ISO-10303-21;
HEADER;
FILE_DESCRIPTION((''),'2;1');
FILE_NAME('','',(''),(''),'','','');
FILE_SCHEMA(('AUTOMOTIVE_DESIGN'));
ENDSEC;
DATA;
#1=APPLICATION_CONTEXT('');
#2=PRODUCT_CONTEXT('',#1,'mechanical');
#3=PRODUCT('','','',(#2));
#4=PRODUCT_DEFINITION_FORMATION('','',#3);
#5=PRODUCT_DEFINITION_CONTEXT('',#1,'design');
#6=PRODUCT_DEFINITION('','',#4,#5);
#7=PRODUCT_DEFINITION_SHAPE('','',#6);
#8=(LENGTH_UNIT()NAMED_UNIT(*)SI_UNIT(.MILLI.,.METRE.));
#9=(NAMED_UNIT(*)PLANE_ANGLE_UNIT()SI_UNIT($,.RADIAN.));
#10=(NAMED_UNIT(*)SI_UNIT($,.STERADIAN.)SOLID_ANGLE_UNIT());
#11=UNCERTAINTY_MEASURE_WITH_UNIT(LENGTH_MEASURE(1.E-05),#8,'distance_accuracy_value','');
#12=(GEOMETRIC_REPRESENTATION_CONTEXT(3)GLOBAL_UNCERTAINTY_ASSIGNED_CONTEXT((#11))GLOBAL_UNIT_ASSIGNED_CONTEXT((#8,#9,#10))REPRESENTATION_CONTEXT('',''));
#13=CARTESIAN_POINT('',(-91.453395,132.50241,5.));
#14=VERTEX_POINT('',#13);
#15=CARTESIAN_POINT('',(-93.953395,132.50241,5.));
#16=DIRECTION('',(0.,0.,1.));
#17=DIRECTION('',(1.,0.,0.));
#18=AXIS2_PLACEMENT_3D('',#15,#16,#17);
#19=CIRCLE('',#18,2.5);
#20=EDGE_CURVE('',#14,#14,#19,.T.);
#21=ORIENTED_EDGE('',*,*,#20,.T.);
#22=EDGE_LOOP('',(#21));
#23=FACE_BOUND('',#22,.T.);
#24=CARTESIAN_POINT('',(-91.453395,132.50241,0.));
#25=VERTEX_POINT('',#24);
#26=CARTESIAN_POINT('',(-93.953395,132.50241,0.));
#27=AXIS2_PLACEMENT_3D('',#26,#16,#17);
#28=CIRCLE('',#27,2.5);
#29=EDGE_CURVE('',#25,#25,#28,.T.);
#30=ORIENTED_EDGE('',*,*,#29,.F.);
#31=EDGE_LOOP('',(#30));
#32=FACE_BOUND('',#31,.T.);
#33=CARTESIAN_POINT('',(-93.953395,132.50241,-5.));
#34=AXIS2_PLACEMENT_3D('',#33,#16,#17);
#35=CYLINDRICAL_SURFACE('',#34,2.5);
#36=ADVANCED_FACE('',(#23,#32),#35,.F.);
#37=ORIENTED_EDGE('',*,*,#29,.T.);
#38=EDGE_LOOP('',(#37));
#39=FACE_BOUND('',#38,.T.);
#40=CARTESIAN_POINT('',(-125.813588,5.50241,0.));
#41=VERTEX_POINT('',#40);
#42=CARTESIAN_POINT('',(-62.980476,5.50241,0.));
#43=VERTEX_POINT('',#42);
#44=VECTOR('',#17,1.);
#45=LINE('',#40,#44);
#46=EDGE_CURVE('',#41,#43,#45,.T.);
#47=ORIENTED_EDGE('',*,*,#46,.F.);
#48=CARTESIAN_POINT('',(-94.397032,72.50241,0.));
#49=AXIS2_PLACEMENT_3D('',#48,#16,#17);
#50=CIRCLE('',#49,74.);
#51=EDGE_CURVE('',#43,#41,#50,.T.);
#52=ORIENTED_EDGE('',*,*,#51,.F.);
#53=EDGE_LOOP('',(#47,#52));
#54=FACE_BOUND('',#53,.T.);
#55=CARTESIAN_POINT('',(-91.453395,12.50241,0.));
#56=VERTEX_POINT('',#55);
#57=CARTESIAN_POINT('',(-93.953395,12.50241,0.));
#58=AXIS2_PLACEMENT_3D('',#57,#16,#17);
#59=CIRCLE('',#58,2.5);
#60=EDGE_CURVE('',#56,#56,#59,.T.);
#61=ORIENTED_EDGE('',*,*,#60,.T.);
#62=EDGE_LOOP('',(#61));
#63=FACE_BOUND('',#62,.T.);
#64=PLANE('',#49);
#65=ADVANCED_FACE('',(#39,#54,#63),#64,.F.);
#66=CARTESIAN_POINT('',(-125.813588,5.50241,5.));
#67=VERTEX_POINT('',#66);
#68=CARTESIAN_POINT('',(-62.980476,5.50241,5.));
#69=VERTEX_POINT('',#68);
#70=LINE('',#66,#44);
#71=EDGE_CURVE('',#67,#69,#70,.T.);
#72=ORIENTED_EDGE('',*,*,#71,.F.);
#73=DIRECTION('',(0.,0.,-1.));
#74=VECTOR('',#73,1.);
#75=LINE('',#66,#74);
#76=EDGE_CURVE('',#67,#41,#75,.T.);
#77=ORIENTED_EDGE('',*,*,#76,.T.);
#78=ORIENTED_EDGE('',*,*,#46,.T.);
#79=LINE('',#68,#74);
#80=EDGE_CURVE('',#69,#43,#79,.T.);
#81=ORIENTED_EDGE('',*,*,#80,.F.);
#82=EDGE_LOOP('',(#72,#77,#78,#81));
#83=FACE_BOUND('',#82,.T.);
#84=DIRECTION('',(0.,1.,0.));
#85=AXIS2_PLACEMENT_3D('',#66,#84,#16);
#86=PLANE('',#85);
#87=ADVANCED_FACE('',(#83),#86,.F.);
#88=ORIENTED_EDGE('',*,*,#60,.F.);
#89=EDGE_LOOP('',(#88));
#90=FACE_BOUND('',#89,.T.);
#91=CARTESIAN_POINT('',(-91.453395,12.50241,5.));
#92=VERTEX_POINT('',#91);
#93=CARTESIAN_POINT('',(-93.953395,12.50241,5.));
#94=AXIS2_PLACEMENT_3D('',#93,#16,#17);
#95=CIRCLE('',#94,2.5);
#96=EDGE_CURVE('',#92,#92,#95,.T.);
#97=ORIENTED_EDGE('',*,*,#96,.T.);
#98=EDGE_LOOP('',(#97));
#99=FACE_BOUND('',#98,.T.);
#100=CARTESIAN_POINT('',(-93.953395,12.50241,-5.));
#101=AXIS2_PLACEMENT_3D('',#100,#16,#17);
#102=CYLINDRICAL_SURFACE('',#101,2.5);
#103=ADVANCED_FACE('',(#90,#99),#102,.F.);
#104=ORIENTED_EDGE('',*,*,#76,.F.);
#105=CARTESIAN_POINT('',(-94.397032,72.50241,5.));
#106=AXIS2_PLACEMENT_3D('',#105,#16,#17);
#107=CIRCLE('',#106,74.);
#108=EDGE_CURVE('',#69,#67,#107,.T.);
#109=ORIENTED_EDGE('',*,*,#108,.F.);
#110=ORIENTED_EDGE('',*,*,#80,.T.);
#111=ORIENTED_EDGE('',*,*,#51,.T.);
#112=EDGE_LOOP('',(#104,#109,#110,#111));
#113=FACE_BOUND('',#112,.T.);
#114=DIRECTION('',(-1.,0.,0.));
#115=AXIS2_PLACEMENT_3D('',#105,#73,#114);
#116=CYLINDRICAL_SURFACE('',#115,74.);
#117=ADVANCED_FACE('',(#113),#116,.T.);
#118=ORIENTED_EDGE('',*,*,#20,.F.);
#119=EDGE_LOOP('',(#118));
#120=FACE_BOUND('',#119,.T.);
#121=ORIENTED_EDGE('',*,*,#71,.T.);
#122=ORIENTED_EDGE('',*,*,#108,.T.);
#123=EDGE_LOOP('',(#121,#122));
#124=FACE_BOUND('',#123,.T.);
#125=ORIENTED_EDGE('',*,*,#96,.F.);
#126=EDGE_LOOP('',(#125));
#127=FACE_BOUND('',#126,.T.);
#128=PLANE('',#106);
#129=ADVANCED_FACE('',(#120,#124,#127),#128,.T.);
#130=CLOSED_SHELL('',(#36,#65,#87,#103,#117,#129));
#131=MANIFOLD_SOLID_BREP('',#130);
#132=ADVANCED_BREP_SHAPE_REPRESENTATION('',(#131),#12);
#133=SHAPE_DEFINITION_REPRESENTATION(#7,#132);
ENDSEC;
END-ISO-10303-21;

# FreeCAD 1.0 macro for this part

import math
import FreeCAD as App
import Part
import Sketcher

V = App.Vector

doc = App.newDocument("Part")
params = doc.addObject("Spreadsheet::Sheet", "Params")
for row, (alias, value) in enumerate([
    ("sketch1_radius", "74 mm"),
    ("pad1_length", "5 mm"),
    ("sketch2_diameter", "5 mm"),
    ("pocket1_length", "10 mm"),
], start=1):
    params.set(f"A{row}", alias)
    params.set(f"B{row}", "=" + value)
    params.setAlias(f"B{row}", alias)

body = doc.addObject("PartDesign::Body", "Body")

sketch1 = doc.addObject("Sketcher::SketchObject", "Sketch")
body.addObject(sketch1)
sketch1.AttachmentSupport = (doc.XY_Plane, [""])
sketch1.MapMode = "FlatFace"
sketch1.addGeometry(Part.LineSegment(V(-126, 6, 0), V(-63, 6, 0)), False)
sketch1.addGeometry(Part.ArcOfCircle(Part.Circle(V(-94, 73, 0), V(0, 0, 1), 74), math.radians(-65), math.radians(245)), False)
sketch1.addConstraint(Sketcher.Constraint("Coincident", 0, 1, 1, 2))
sketch1.addConstraint(Sketcher.Constraint("Coincident", 1, 1, 0, 2))
sketch1.addConstraint(Sketcher.Constraint("Horizontal", 0))
sketch1.addConstraint(Sketcher.Constraint("Radius", 1, 74.0))
sketch1.addConstraint(Sketcher.Constraint("DistanceY", 0, 1, 1, 3, 67.0))
sketch1.addConstraint(Sketcher.Constraint("DistanceX", 1, 3, -1, 1, 94.397032))
sketch1.addConstraint(Sketcher.Constraint("DistanceY", -1, 1, 1, 3, 72.50241))
sketch1.setExpression("Constraints[3]", "Params.sketch1_radius")
pad1 = doc.addObject("PartDesign::Pad", "Pad")
body.addObject(pad1)
pad1.Profile = sketch1
pad1.setExpression("Length", "Params.pad1_length")

sketch2 = doc.addObject("Sketcher::SketchObject", "Sketch001")
body.addObject(sketch2)
sketch2.AttachmentSupport = (doc.XY_Plane, [""])
sketch2.MapMode = "FlatFace"
sketch2.AttachmentOffset = App.Placement(V(0, 0, 5), App.Rotation())
sketch2.addGeometry(Part.Circle(V(-94, 132.5, 0), V(0, 0, 1), 2.5), False)
sketch2.addGeometry(Part.Circle(V(-94, 12.5, 0), V(0, 0, 1), 2.5), False)
sketch2.addConstraint(Sketcher.Constraint("Equal", 0, 1))
sketch2.addConstraint(Sketcher.Constraint("Vertical", 0, 3, 1, 3))
sketch2.addConstraint(Sketcher.Constraint("Diameter", 0, 5.0))
sketch2.addConstraint(Sketcher.Constraint("DistanceY", 1, 3, 0, 3, 120.0))
sketch2.addConstraint(Sketcher.Constraint("DistanceY", -1, 1, 0, 3, 132.50241))
sketch2.addConstraint(Sketcher.Constraint("DistanceX", 0, 3, -1, 1, 93.953395))
sketch2.setExpression("Constraints[2]", "Params.sketch2_diameter")
pocket1 = doc.addObject("PartDesign::Pocket", "Pocket")
body.addObject(pocket1)
pocket1.Profile = sketch2
pocket1.setExpression("Length", "Params.pocket1_length")

doc.recompute()
